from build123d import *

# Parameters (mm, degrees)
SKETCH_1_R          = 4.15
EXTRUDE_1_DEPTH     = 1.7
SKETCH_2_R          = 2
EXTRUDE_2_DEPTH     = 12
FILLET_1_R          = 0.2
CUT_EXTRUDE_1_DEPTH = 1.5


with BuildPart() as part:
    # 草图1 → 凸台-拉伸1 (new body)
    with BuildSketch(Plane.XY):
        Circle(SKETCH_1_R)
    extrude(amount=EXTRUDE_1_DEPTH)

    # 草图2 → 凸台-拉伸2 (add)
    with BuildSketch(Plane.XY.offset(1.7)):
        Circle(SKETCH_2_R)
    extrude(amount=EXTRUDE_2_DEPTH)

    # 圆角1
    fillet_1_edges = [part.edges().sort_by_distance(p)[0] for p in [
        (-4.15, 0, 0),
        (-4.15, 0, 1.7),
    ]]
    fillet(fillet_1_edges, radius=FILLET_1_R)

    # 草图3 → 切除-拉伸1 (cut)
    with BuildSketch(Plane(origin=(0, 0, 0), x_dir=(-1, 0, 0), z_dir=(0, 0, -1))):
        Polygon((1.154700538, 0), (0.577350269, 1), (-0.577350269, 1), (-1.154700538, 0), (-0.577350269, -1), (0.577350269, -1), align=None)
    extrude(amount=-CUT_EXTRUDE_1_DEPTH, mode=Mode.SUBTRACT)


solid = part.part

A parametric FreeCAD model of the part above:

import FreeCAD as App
import Part
import Sketcher
Q = App.Units.Quantity


def edges_at(feature, points):
    """Names of the edges that pass closest to the given points."""
    edges = feature.Shape.Edges
    near = lambda p: min(range(len(edges)), key=lambda i: edges[i].distToShape(Part.Vertex(*p))[0])
    return sorted({f"Edge{near(p) + 1}" for p in points})


def add_polygon(sketch, points):
    """Adds a closed chain of lines whose ends are joined by coincident constraints."""
    first, n = sketch.GeometryCount, len(points)
    for a, b in zip(points, points[1:] + points[:1]):
        sketch.addGeometry(Part.LineSegment(App.Vector(*a, 0), App.Vector(*b, 0)), False)
    for i in range(n):
        sketch.addConstraint(Sketcher.Constraint("Coincident", first + i, 2, first + (i + 1) % n, 1))

doc = App.newDocument("Part")
body = doc.addObject("PartDesign::Body", "Body")

# Sketch on XY plane
sketch1 = body.newObject("Sketcher::SketchObject", "Sketch")
sketch1.AttachmentSupport = (doc.getObject("XY_Plane"), [""])
sketch1.MapMode = "FlatFace"
sketch1.addGeometry(Part.Circle(App.Vector(0, 0, 0), App.Vector(0, 0, 1), 4.2), False)
sketch1.addConstraint(Sketcher.Constraint("Coincident", 0, 3, -1, 1))
sketch1.addConstraint(Sketcher.Constraint("Diameter", 0, Q("8.3 mm")))
pad1 = body.newObject("PartDesign::Pad", "Pad")
pad1.Profile = sketch1
pad1.Length = 1.7

# Sketch on XY plane
sketch2 = body.newObject("Sketcher::SketchObject", "Sketch001")
sketch2.AttachmentSupport = (doc.getObject("XY_Plane"), [""])
sketch2.MapMode = "FlatFace"
sketch2.AttachmentOffset = App.Placement(App.Vector(0, 0, 1.7), App.Rotation())
sketch2.addGeometry(Part.Circle(App.Vector(0, 0, 0), App.Vector(0, 0, 1), 2), False)
sketch2.addConstraint(Sketcher.Constraint("Coincident", 0, 3, -1, 1))
sketch2.addConstraint(Sketcher.Constraint("Diameter", 0, Q("4 mm")))
pad2 = body.newObject("PartDesign::Pad", "Pad001")
pad2.Profile = sketch2
pad2.Length = 12
doc.recompute()

fillet = body.newObject("PartDesign::Fillet", "Fillet")
fillet.Base = (pad2, edges_at(pad2, [(-4.15, 0, 0), (-4.15, 0, 1.7)]))
fillet.Radius = 0.2

# Sketch on XY plane
sketch3 = body.newObject("Sketcher::SketchObject", "Sketch002")
sketch3.AttachmentSupport = (doc.getObject("XY_Plane"), [""])
sketch3.MapMode = "FlatFace"
add_polygon(sketch3, [(-1.2, 0), (-0.6, 1), (0.6, 1), (1.2, 0), (0.6, -1), (-0.6, -1)])  # lines 0-5
sketch3.addConstraint(Sketcher.Constraint("Horizontal", 1))
sketch3.addConstraint(Sketcher.Constraint("Horizontal", 4))
sketch3.addConstraint(Sketcher.Constraint("Symmetric", 0, 2, 3, 2, -1, 1))
sketch3.addConstraint(Sketcher.Constraint("Symmetric", 2, 2, 5, 2, -1, 1))
sketch3.addConstraint(Sketcher.Constraint("PointOnObject", 2, 2, -1))
sketch3.addConstraint(Sketcher.Constraint("Parallel", 2, 5))
sketch3.addConstraint(Sketcher.Constraint("Vertical", 1, 2, 3, 2))
sketch3.addConstraint(Sketcher.Constraint("Angle", 0, Q("60 deg")))
sketch3.addConstraint(Sketcher.Constraint("DistanceY", -1, 1, 0, 2, Q("1 mm")))
sketch3.addConstraint(Sketcher.Constraint("DistanceX", 1, 1, 1, 2, Q("1.154701 mm")))
pocket1 = body.newObject("PartDesign::Pocket", "Pocket")
pocket1.Profile = sketch3
pocket1.Length = 1.5
pocket1.Reversed = True

doc.recompute()
